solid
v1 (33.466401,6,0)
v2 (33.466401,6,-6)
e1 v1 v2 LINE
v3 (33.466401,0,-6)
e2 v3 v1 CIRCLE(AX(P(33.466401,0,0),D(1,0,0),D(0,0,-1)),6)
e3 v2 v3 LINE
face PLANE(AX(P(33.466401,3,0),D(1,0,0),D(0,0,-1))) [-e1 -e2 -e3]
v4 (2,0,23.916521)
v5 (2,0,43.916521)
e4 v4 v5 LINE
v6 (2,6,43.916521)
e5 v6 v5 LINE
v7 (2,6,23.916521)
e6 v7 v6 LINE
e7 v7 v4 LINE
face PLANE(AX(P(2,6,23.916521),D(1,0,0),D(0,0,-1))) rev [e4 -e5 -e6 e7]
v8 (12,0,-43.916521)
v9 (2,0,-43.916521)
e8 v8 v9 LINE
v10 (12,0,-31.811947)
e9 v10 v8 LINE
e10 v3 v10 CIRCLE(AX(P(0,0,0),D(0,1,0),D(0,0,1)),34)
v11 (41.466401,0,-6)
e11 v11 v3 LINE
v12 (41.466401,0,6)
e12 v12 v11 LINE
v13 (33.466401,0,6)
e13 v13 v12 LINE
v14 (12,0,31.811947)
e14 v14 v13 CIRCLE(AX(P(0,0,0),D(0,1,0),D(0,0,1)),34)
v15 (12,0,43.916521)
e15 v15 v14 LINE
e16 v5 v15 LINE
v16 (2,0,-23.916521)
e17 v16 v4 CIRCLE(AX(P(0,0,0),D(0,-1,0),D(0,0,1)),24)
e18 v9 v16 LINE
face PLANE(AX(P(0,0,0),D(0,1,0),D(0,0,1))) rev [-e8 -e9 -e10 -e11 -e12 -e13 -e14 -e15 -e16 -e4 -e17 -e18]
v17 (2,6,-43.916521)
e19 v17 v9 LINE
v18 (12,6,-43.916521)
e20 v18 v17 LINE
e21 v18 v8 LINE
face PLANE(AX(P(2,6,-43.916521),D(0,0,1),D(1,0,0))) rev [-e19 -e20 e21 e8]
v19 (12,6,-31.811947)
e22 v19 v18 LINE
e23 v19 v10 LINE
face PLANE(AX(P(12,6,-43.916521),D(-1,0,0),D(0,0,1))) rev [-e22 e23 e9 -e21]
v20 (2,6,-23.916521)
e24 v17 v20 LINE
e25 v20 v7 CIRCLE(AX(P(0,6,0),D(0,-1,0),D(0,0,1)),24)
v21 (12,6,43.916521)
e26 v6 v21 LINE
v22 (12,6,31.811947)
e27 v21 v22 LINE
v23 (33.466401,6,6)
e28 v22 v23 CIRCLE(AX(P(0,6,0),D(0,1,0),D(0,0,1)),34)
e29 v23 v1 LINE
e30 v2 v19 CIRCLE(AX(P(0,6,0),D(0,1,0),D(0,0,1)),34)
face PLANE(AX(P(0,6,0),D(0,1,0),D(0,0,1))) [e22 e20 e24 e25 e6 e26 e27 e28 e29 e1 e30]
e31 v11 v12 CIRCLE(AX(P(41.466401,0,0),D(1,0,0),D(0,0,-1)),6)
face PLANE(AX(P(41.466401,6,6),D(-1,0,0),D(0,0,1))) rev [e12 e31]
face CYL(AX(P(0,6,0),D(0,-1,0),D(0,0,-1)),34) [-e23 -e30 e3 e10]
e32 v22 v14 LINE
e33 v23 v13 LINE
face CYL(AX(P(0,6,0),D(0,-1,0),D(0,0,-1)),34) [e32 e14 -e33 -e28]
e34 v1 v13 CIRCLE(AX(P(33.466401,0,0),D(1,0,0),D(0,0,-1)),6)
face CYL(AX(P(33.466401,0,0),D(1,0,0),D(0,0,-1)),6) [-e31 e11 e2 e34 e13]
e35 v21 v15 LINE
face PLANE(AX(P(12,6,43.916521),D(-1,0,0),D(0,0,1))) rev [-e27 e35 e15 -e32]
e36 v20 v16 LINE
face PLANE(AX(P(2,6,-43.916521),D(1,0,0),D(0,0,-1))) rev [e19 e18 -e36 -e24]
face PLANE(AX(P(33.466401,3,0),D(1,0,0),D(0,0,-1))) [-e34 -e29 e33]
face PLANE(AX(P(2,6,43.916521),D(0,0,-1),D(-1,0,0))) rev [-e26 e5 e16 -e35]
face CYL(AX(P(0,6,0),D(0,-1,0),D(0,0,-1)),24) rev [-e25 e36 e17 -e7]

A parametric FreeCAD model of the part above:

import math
import FreeCAD as App
import Part
import Sketcher
from FreeCAD import Vector
Q = App.Units.Quantity


def add_polygon(sketch, points):
    """Adds a closed chain of lines whose ends are joined by coincident constraints."""
    first, n = sketch.GeometryCount, len(points)
    for a, b in zip(points, points[1:] + points[:1]):
        sketch.addGeometry(Part.LineSegment(App.Vector(*a, 0), App.Vector(*b, 0)), False)
    for i in range(n):
        sketch.addConstraint(Sketcher.Constraint("Coincident", first + i, 2, first + (i + 1) % n, 1))

doc = App.newDocument("Part")
body = doc.addObject("PartDesign::Body", "Body")

# Sketch on XZ plane
sketch1 = body.newObject("Sketcher::SketchObject", "Sketch")
sketch1.AttachmentSupport = (doc.getObject("XZ_Plane"), [""])
sketch1.MapMode = "FlatFace"
sketch1.addGeometry(Part.LineSegment(Vector(2, -44, 0), Vector(2, -24, 0)), False)
sketch1.addGeometry(Part.ArcOfCircle(Part.Circle(Vector(0, 0, 0), Vector(0, 0, 1), 24), math.radians(-85), math.radians(85)), False)
sketch1.addGeometry(Part.LineSegment(Vector(2, 24, 0), Vector(2, 44, 0)), False)
sketch1.addGeometry(Part.LineSegment(Vector(2, 44, 0), Vector(12, 44, 0)), False)
sketch1.addGeometry(Part.LineSegment(Vector(12, 44, 0), Vector(12, 32, 0)), False)
sketch1.addGeometry(Part.ArcOfCircle(Part.Circle(Vector(0, 0, 0), Vector(0, 0, 1), 34), math.radians(10), math.radians(69)), False)
sketch1.addGeometry(Part.LineSegment(Vector(33, 6, 0), Vector(41, 6, 0)), False)
sketch1.addGeometry(Part.LineSegment(Vector(41, 6, 0), Vector(41, -6, 0)), False)
sketch1.addGeometry(Part.LineSegment(Vector(41, -6, 0), Vector(33, -6, 0)), False)
sketch1.addGeometry(Part.ArcOfCircle(Part.Circle(Vector(0, 0, 0), Vector(0, 0, 1), 34), math.radians(-69), math.radians(-10)), False)
sketch1.addGeometry(Part.LineSegment(Vector(12, -32, 0), Vector(12, -44, 0)), False)
sketch1.addGeometry(Part.LineSegment(Vector(12, -44, 0), Vector(2, -44, 0)), False)
sketch1.addConstraint(Sketcher.Constraint("Coincident", 0, 2, 1, 1))
sketch1.addConstraint(Sketcher.Constraint("Coincident", 1, 2, 2, 1))
sketch1.addConstraint(Sketcher.Constraint("Coincident", 2, 2, 3, 1))
sketch1.addConstraint(Sketcher.Constraint("Coincident", 3, 2, 4, 1))
sketch1.addConstraint(Sketcher.Constraint("Coincident", 4, 2, 5, 2))
sketch1.addConstraint(Sketcher.Constraint("Coincident", 5, 1, 6, 1))
sketch1.addConstraint(Sketcher.Constraint("Coincident", 6, 2, 7, 1))
sketch1.addConstraint(Sketcher.Constraint("Coincident", 7, 2, 8, 1))
sketch1.addConstraint(Sketcher.Constraint("Coincident", 8, 2, 9, 2))
sketch1.addConstraint(Sketcher.Constraint("Coincident", 9, 1, 10, 1))
sketch1.addConstraint(Sketcher.Constraint("Coincident", 10, 2, 11, 1))
sketch1.addConstraint(Sketcher.Constraint("Coincident", 11, 2, 0, 1))
sketch1.addConstraint(Sketcher.Constraint("Vertical", 0))
sketch1.addConstraint(Sketcher.Constraint("Vertical", 2))
sketch1.addConstraint(Sketcher.Constraint("Horizontal", 3))
sketch1.addConstraint(Sketcher.Constraint("Vertical", 4))
sketch1.addConstraint(Sketcher.Constraint("Horizontal", 6))
sketch1.addConstraint(Sketcher.Constraint("Vertical", 7))
sketch1.addConstraint(Sketcher.Constraint("Horizontal", 8))
sketch1.addConstraint(Sketcher.Constraint("Vertical", 10))
sketch1.addConstraint(Sketcher.Constraint("Horizontal", 11))
sketch1.addConstraint(Sketcher.Constraint("Coincident", 1, 3, -1, 1))
sketch1.addConstraint(Sketcher.Constraint("Coincident", 5, 3, -1, 1))
sketch1.addConstraint(Sketcher.Constraint("Coincident", 9, 3, -1, 1))
sketch1.addConstraint(Sketcher.Constraint("Equal", 5, 9))
sketch1.addConstraint(Sketcher.Constraint("Symmetric", 3, 2, 10, 2, -1))
sketch1.addConstraint(Sketcher.Constraint("Vertical", 0, 2, 1, 2))
sketch1.addConstraint(Sketcher.Constraint("Vertical", 5, 1, 8, 2))
sketch1.addConstraint(Sketcher.Constraint("Radius", 1, Q("24 mm")))
sketch1.addConstraint(Sketcher.Constraint("Radius", 5, Q("34 mm")))
sketch1.addConstraint(Sketcher.Constraint("DistanceX", 3, 1, 3, 2, Q("10 mm")))
sketch1.addConstraint(Sketcher.Constraint("DistanceX", 6, 1, 6, 2, Q("8 mm")))
sketch1.addConstraint(Sketcher.Constraint("DistanceY", 0, 1, 0, 2, Q("20 mm")))
sketch1.addConstraint(Sketcher.Constraint("DistanceY", 7, 2, 7, 1, Q("12 mm")))
sketch1.addConstraint(Sketcher.Constraint("DistanceX", -1, 1, 0, 2, Q("2 mm")))
pad1 = body.newObject("PartDesign::Pad", "Pad")
pad1.Profile = sketch1
pad1.Length = 6
pad1.Reversed = True

# Sketch on YZ plane
sketch2 = body.newObject("Sketcher::SketchObject", "Sketch001")
sketch2.AttachmentSupport = (doc.getObject("YZ_Plane"), [""])
sketch2.MapMode = "FlatFace"
sketch2.AttachmentOffset = App.Placement(Vector(0, 0, 41.466401), App.Rotation())
add_polygon(sketch2, [(17, 55), (-11, 55), (-11, -55), (17, -55)])  # lines 0-3
sketch2.addGeometry(Part.LineSegment(Vector(0, -6, 0), Vector(0, 6, 0)), False)  # 4
sketch2.addGeometry(Part.ArcOfCircle(Part.Circle(Vector(0, 0, 0), Vector(0, 0, 1), 6), math.radians(-90), math.radians(90)), False)  # 5
sketch2.addConstraint(Sketcher.Constraint("Coincident", 4, 1, 5, 1))
sketch2.addConstraint(Sketcher.Constraint("Coincident", 5, 2, 4, 2))
sketch2.addConstraint(Sketcher.Constraint("Horizontal", 0))
sketch2.addConstraint(Sketcher.Constraint("Vertical", 1))
sketch2.addConstraint(Sketcher.Constraint("Horizontal", 2))
sketch2.addConstraint(Sketcher.Constraint("Vertical", 3))
sketch2.addConstraint(Sketcher.Constraint("Vertical", 4))
sketch2.addConstraint(Sketcher.Constraint("Coincident", 5, 3, -1, 1))
sketch2.addConstraint(Sketcher.Constraint("PointOnObject", 4, 1, -2))
sketch2.addConstraint(Sketcher.Constraint("Radius", 5, Q("6 mm")))
sketch2.addConstraint(Sketcher.Constraint("DistanceY", 1, 2, 1, 1, Q("109.13 mm")))
sketch2.addConstraint(Sketcher.Constraint("DistanceX", 0, 2, 0, 1, Q("27.296 mm")))
sketch2.addConstraint(Sketcher.Constraint("DistanceX", 0, 2, -1, 1, Q("10.648 mm")))
sketch2.addConstraint(Sketcher.Constraint("DistanceY", -1, 1, 0, 2, Q("54.565 mm")))
pocket1 = body.newObject("PartDesign::Pocket", "Pocket")
pocket1.Profile = sketch2
pocket1.Length = 8

doc.recompute()
